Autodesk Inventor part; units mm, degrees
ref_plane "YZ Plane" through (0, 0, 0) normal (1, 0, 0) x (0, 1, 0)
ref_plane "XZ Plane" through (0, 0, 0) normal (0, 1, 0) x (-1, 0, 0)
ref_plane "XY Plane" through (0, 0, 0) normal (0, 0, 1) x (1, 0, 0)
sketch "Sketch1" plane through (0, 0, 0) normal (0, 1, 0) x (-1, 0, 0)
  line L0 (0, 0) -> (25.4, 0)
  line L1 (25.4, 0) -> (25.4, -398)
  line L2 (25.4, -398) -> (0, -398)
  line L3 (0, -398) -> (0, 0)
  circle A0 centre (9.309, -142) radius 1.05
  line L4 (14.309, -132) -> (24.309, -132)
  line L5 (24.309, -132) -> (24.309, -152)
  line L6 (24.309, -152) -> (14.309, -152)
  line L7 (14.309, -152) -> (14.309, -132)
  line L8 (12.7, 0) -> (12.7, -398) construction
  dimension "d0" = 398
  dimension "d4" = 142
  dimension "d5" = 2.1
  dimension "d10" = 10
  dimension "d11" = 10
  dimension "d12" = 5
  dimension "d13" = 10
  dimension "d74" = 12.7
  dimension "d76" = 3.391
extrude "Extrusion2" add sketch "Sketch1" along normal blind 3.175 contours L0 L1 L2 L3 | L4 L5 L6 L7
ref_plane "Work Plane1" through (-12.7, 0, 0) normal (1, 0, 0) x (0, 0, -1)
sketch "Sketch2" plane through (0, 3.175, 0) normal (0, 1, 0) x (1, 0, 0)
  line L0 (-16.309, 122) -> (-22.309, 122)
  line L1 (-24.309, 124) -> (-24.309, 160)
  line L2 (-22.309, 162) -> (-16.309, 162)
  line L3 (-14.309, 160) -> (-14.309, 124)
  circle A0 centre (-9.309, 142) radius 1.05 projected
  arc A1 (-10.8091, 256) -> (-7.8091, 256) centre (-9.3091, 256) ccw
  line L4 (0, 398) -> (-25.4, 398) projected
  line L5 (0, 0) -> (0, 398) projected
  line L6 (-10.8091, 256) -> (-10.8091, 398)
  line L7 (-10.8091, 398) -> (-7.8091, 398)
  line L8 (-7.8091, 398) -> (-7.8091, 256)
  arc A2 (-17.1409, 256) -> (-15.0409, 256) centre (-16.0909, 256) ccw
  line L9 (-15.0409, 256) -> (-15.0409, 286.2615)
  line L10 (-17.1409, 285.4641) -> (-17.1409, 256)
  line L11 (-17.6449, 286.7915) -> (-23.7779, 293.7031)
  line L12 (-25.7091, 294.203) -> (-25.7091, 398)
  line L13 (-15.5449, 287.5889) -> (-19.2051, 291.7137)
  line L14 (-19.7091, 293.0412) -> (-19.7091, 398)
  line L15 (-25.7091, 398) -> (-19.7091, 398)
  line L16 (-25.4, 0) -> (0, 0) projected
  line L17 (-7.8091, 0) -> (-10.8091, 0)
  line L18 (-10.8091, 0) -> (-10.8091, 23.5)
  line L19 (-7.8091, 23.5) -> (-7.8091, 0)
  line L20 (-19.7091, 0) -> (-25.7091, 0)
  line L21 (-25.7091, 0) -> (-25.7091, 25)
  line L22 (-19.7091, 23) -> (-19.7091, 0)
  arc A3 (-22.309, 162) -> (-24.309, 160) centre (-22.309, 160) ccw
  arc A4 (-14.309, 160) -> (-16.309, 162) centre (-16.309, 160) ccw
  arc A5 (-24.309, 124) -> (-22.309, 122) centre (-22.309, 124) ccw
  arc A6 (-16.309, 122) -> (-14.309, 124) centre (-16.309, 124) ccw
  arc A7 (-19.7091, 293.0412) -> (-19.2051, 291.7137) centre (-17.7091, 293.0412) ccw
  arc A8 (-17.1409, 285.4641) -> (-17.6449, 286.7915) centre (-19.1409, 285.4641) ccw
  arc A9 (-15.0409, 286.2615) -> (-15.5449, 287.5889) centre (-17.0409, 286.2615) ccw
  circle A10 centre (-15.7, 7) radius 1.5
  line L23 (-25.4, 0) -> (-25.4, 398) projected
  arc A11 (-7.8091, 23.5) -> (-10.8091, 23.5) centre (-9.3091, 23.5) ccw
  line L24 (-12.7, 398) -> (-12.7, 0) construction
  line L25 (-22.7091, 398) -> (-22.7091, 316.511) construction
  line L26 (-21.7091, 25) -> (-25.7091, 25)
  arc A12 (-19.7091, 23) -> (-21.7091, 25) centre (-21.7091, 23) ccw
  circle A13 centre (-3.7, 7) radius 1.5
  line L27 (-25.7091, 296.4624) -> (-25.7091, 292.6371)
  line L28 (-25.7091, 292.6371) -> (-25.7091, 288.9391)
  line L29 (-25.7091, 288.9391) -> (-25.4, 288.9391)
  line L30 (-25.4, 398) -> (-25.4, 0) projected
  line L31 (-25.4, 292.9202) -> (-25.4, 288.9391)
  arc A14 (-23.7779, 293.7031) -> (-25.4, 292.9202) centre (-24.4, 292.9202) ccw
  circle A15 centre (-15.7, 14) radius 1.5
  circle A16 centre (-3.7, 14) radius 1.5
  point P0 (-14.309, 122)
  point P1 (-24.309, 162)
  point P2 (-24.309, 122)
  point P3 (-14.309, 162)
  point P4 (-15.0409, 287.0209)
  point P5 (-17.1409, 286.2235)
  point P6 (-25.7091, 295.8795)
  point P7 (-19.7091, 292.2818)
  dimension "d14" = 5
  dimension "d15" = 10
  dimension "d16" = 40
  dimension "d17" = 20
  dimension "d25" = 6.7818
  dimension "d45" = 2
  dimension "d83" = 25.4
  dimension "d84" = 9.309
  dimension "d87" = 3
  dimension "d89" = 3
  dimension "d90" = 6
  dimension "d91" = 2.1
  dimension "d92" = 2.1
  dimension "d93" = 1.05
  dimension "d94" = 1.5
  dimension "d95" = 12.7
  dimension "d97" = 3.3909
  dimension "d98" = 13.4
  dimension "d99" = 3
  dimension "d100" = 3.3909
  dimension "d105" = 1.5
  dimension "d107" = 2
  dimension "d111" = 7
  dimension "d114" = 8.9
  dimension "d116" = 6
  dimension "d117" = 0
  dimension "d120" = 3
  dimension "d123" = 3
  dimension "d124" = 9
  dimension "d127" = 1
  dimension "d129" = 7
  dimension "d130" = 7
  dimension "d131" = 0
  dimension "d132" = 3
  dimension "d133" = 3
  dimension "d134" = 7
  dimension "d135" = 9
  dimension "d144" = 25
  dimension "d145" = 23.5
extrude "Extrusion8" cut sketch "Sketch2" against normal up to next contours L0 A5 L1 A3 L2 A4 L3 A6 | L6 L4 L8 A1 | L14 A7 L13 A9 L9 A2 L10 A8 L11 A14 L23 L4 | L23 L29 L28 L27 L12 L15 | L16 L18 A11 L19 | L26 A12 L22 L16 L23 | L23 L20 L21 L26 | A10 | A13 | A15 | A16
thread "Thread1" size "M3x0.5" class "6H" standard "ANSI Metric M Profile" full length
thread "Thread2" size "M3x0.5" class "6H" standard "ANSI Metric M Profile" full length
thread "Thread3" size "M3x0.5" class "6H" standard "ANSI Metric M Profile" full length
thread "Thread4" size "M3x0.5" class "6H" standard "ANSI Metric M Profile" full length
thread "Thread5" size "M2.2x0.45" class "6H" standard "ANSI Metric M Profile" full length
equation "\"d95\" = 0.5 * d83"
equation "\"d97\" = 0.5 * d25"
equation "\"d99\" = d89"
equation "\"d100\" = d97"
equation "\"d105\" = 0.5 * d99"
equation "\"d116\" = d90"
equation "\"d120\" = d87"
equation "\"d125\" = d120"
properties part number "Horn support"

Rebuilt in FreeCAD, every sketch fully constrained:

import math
import FreeCAD as App
import Part
import Sketcher
from FreeCAD import Vector


def add_polygon(sketch, points):
    """Adds a closed chain of lines whose ends are joined by coincident constraints."""
    first, n = sketch.GeometryCount, len(points)
    for a, b in zip(points, points[1:] + points[:1]):
        sketch.addGeometry(Part.LineSegment(App.Vector(*a, 0), App.Vector(*b, 0)), False)
    for i in range(n):
        sketch.addConstraint(Sketcher.Constraint("Coincident", first + i, 2, first + (i + 1) % n, 1))

doc = App.newDocument("Part")
body = doc.addObject("PartDesign::Body", "Body")

sketch1 = doc.addObject("Sketcher::SketchObject", "Sketch")
body.addObject(sketch1)
sketch1.AttachmentSupport = (doc.XZ_Plane, [""])
sketch1.MapMode = "FlatFace"
add_polygon(sketch1, [(-25.4, 0), (0, 0), (0, -398), (-25.4, -398)])
sketch1.addGeometry(Part.Circle(Vector(-9.3, -142, 0), Vector(0, 0, 1), 1.1), False)
sketch1.addConstraint([
    Sketcher.Constraint("Horizontal", 0),
    Sketcher.Constraint("Vertical", 1),
    Sketcher.Constraint("Horizontal", 2),
    Sketcher.Constraint("Vertical", 3),
    Sketcher.Constraint("Coincident", 0, 2, -1, 1),
    Sketcher.Constraint("Diameter", 4, 2.1),
    Sketcher.Constraint("DistanceY", 1, 2, 1, 1, 398.0),
    Sketcher.Constraint("DistanceY", 4, 3, -1, 1, 142.0),
    Sketcher.Constraint("DistanceX", 0, 1, 0, 2, 25.4),
    Sketcher.Constraint("DistanceX", 4, 3, -1, 1, 9.309),
])
pad1 = doc.addObject("PartDesign::Pad", "Pad")
body.addObject(pad1)
pad1.Profile = sketch1
pad1.Length = 3.175
pad1.Reversed = True

sketch2 = doc.addObject("Sketcher::SketchObject", "Sketch001")
body.addObject(sketch2)
sketch2.AttachmentSupport = (doc.XZ_Plane, [""])
sketch2.MapMode = "FlatFace"
sketch2.AttachmentOffset = App.Placement(Vector(0, 0, -3.175), App.Rotation())
sketch2.addGeometry([
    Part.LineSegment(Vector(-22.31, -122, 0), Vector(-16.31, -122, 0)),
    Part.ArcOfCircle(Part.Circle(Vector(-16.31, -124, 0), Vector(0, 0, 1), 2), math.radians(0), math.radians(90)),
    Part.LineSegment(Vector(-14.31, -124, 0), Vector(-14.31, -160, 0)),
    Part.ArcOfCircle(Part.Circle(Vector(-16.31, -160, 0), Vector(0, 0, 1), 2), math.radians(-90), math.radians(0)),
    Part.LineSegment(Vector(-16.31, -162, 0), Vector(-22.31, -162, 0)),
    Part.ArcOfCircle(Part.Circle(Vector(-22.31, -160, 0), Vector(0, 0, 1), 2), math.radians(180), math.radians(270)),
    Part.LineSegment(Vector(-24.31, -160, 0), Vector(-24.31, -124, 0)),
    Part.ArcOfCircle(Part.Circle(Vector(-22.31, -124, 0), Vector(0, 0, 1), 2), math.radians(90), math.radians(180)),
    Part.LineSegment(Vector(-10.81, -398, 0), Vector(-10.81, -256, 0)),
    Part.ArcOfCircle(Part.Circle(Vector(-9.31, -256, 0), Vector(0, 0, 1), 1.5), math.radians(0), math.radians(180)),
    Part.LineSegment(Vector(-7.81, -256, 0), Vector(-7.81, -398, 0)),
    Part.LineSegment(Vector(-7.81, -398, 0), Vector(-10.81, -398, 0)),
    Part.LineSegment(Vector(-19.71, -293.04, 0), Vector(-19.71, -398, 0)),
    Part.LineSegment(Vector(-19.71, -398, 0), Vector(-25.71, -398, 0)),
    Part.LineSegment(Vector(-25.71, -398, 0), Vector(-25.71, -288.94, 0)),
    Part.LineSegment(Vector(-25.71, -288.94, 0), Vector(-25.4, -288.94, 0)),
    Part.LineSegment(Vector(-25.4, -288.94, 0), Vector(-25.4, -292.92, 0)),
    Part.ArcOfCircle(Part.Circle(Vector(-24.4, -292.92, 0), Vector(0, 0, 1), 1), math.radians(180), math.radians(308)),
    Part.LineSegment(Vector(-23.78, -293.7, 0), Vector(-17.64, -286.79, 0)),
    Part.ArcOfCircle(Part.Circle(Vector(-19.14, -285.46, 0), Vector(0, 0, 1), 2), math.radians(-42), math.radians(0)),
    Part.LineSegment(Vector(-17.14, -285.46, 0), Vector(-17.14, -256, 0)),
    Part.ArcOfCircle(Part.Circle(Vector(-16.09, -256, 0), Vector(0, 0, 1), 1.05), math.radians(0), math.radians(180)),
    Part.LineSegment(Vector(-15.04, -256, 0), Vector(-15.04, -286.26, 0)),
    Part.ArcOfCircle(Part.Circle(Vector(-17.04, -286.26, 0), Vector(0, 0, 1), 2), math.radians(-42), math.radians(0)),
    Part.LineSegment(Vector(-15.54, -287.59, 0), Vector(-19.21, -291.71, 0)),
    Part.ArcOfCircle(Part.Circle(Vector(-17.71, -293.04, 0), Vector(0, 0, 1), 2), math.radians(138), math.radians(180)),
    Part.LineSegment(Vector(-10.81, 0, 0), Vector(-7.81, 0, 0)),
    Part.LineSegment(Vector(-7.81, 0, 0), Vector(-7.81, -23.5, 0)),
    Part.ArcOfCircle(Part.Circle(Vector(-9.31, -23.5, 0), Vector(0, 0, 1), 1.5), math.radians(180), math.radians(360)),
    Part.LineSegment(Vector(-10.81, -23.5, 0), Vector(-10.81, 0, 0)),
    Part.LineSegment(Vector(-21.71, -25, 0), Vector(-25.71, -25, 0)),
    Part.LineSegment(Vector(-25.71, -25, 0), Vector(-25.71, 0, 0)),
    Part.LineSegment(Vector(-25.71, 0, 0), Vector(-19.71, 0, 0)),
    Part.LineSegment(Vector(-19.71, 0, 0), Vector(-19.71, -23, 0)),
    Part.ArcOfCircle(Part.Circle(Vector(-21.71, -23, 0), Vector(0, 0, 1), 2), math.radians(-90), math.radians(0)),
    Part.Circle(Vector(-15.7, -7, 0), Vector(0, 0, 1), 1.5),
    Part.Circle(Vector(-3.7, -7, 0), Vector(0, 0, 1), 1.5),
    Part.Circle(Vector(-15.7, -14, 0), Vector(0, 0, 1), 1.5),
    Part.Circle(Vector(-3.7, -14, 0), Vector(0, 0, 1), 1.5),
], False)
sketch2.addConstraint([
    Sketcher.Constraint("Tangent", 0, 2, 1, 2),
    Sketcher.Constraint("Tangent", 1, 1, 2, 1),
    Sketcher.Constraint("Tangent", 2, 2, 3, 2),
    Sketcher.Constraint("Tangent", 3, 1, 4, 1),
    Sketcher.Constraint("Tangent", 4, 2, 5, 2),
    Sketcher.Constraint("Tangent", 5, 1, 6, 1),
    Sketcher.Constraint("Tangent", 6, 2, 7, 2),
    Sketcher.Constraint("Tangent", 7, 1, 0, 1),
    Sketcher.Constraint("Tangent", 8, 2, 9, 2),
    Sketcher.Constraint("Tangent", 9, 1, 10, 1),
    Sketcher.Constraint("Coincident", 10, 2, 11, 1),
    Sketcher.Constraint("Coincident", 11, 2, 8, 1),
    Sketcher.Constraint("Coincident", 12, 2, 13, 1),
    Sketcher.Constraint("Coincident", 13, 2, 14, 1),
    Sketcher.Constraint("Coincident", 14, 2, 15, 1),
    Sketcher.Constraint("Coincident", 15, 2, 16, 1),
    Sketcher.Constraint("Tangent", 16, 2, 17, 1),
    Sketcher.Constraint("Coincident", 17, 2, 18, 1),
    Sketcher.Constraint("Tangent", 18, 2, 19, 1),
    Sketcher.Constraint("Tangent", 19, 2, 20, 1),
    Sketcher.Constraint("Tangent", 20, 2, 21, 2),
    Sketcher.Constraint("Tangent", 21, 1, 22, 1),
    Sketcher.Constraint("Tangent", 22, 2, 23, 2),
    Sketcher.Constraint("Tangent", 23, 1, 24, 1),
    Sketcher.Constraint("Tangent", 24, 2, 25, 1),
    Sketcher.Constraint("Tangent", 25, 2, 12, 1),
    Sketcher.Constraint("Coincident", 26, 2, 27, 1),
    Sketcher.Constraint("Tangent", 27, 2, 28, 2),
    Sketcher.Constraint("Tangent", 28, 1, 29, 1),
    Sketcher.Constraint("Coincident", 29, 2, 26, 1),
    Sketcher.Constraint("Coincident", 30, 2, 31, 1),
    Sketcher.Constraint("Coincident", 31, 2, 32, 1),
    Sketcher.Constraint("Coincident", 32, 2, 33, 1),
    Sketcher.Constraint("Tangent", 33, 2, 34, 2),
    Sketcher.Constraint("Tangent", 34, 1, 30, 1),
    Sketcher.Constraint("Horizontal", 0),
    Sketcher.Constraint("Vertical", 2),
    Sketcher.Constraint("Horizontal", 4),
    Sketcher.Constraint("Vertical", 6),
    Sketcher.Constraint("Vertical", 8),
    Sketcher.Constraint("Vertical", 10),
    Sketcher.Constraint("Horizontal", 11),
    Sketcher.Constraint("Vertical", 12),
    Sketcher.Constraint("Horizontal", 13),
    Sketcher.Constraint("Vertical", 14),
    Sketcher.Constraint("Horizontal", 15),
    Sketcher.Constraint("Vertical", 16),
    Sketcher.Constraint("Vertical", 20),
    Sketcher.Constraint("Vertical", 22),
    Sketcher.Constraint("Horizontal", 26),
    Sketcher.Constraint("Vertical", 27),
    Sketcher.Constraint("Vertical", 29),
    Sketcher.Constraint("Horizontal", 30),
    Sketcher.Constraint("Vertical", 31),
    Sketcher.Constraint("Horizontal", 32),
    Sketcher.Constraint("Vertical", 33),
    Sketcher.Constraint("Equal", 1, 3),
    Sketcher.Constraint("Equal", 3, 5),
    Sketcher.Constraint("Equal", 5, 7),
    Sketcher.Constraint("Equal", 7, 19),
    Sketcher.Constraint("Equal", 19, 23),
    Sketcher.Constraint("Equal", 23, 25),
    Sketcher.Constraint("Equal", 9, 28),
    Sketcher.Constraint("Equal", 25, 34),
    Sketcher.Constraint("Equal", 28, 35),
    Sketcher.Constraint("Equal", 35, 36),
    Sketcher.Constraint("Equal", 36, 37),
    Sketcher.Constraint("Equal", 37, 38),
    Sketcher.Constraint("PointOnObject", 26, 2, -1),
    Sketcher.Constraint("PointOnObject", 31, 2, -1),
    Sketcher.Constraint("Parallel", 18, 24),
    Sketcher.Constraint("Horizontal", 9, 3, 21, 3),
    Sketcher.Constraint("Horizontal", 35, 3, 36, 3),
    Sketcher.Constraint("Horizontal", 37, 3, 38, 3),
    Sketcher.Constraint("Horizontal", 11, 2, 12, 2),
    Sketcher.Constraint("Vertical", 9, 3, 28, 3),
    Sketcher.Constraint("Vertical", 35, 3, 37, 3),
    Sketcher.Constraint("Vertical", 36, 3, 38, 3),
    Sketcher.Constraint("Vertical", 14, 2, 30, 2),
    Sketcher.Constraint("Vertical", 25, 2, 32, 2),
    Sketcher.Constraint("Equal", 4, 13),
    Sketcher.Constraint("Diameter", 35, 3.0),
    Sketcher.Constraint("Radius", 1, 2.0),
    Sketcher.Constraint("Radius", 17, 1.0),
    Sketcher.Constraint("DistanceX", 0, 1, 0, 2, 6.0),
    Sketcher.Constraint("DistanceY", 31, 1, 31, 2, 25.0),
    Sketcher.Constraint("Radius", 21, 1.05),
    Sketcher.Constraint("DistanceY", 27, 2, 27, 1, 23.5),
    Sketcher.Constraint("DistanceY", 35, 3, -1, 1, 7.0),
    Sketcher.Constraint("DistanceX", 3, 3, 9, 3, 7.0),
    Sketcher.Constraint("DistanceY", 37, 3, 35, 3, 7.0),
    Sketcher.Constraint("DistanceX", 15, 2, -1, 1, 25.4),
    Sketcher.Constraint("DistanceX", 12, 2, 11, 2, 8.9),
    Sketcher.Constraint("DistanceY", 2, 2, 2, 1, 36.0),
    Sketcher.Constraint("DistanceY", 8, 1, 8, 2, 142.0),
    Sketcher.Constraint("DistanceY", 1, 3, -1, 1, 124.0),
    Sketcher.Constraint("DistanceX", 9, 3, -1, 1, 9.309),
    Sketcher.Constraint("DistanceY", 9, 3, -1, 1, 256.0),
    Sketcher.Constraint("DistanceX", 35, 3, 36, 3, 12.0),
    Sketcher.Constraint("DistanceX", 35, 3, -1, 1, 15.7),
    Sketcher.Constraint("DistanceX", 21, 3, 9, 3, 6.7818),
    Sketcher.Constraint("DistanceY", 14, 1, 14, 2, 109.061),
    Sketcher.Constraint("DistanceY", 16, 2, 16, 1, 3.981),
    Sketcher.Constraint("DistanceY", 20, 1, 20, 2, 29.464),
    Sketcher.Constraint("DistanceY", 18, 2, 23, 3, 0.53),
    Sketcher.Constraint("DistanceY", 12, 2, 12, 1, 104.9588),
])
pocket1 = doc.addObject("PartDesign::Pocket", "Pocket")
body.addObject(pocket1)
pocket1.Profile = sketch2
pocket1.Type = "UpToFirst"
pocket1.Reversed = True

doc.recompute()
